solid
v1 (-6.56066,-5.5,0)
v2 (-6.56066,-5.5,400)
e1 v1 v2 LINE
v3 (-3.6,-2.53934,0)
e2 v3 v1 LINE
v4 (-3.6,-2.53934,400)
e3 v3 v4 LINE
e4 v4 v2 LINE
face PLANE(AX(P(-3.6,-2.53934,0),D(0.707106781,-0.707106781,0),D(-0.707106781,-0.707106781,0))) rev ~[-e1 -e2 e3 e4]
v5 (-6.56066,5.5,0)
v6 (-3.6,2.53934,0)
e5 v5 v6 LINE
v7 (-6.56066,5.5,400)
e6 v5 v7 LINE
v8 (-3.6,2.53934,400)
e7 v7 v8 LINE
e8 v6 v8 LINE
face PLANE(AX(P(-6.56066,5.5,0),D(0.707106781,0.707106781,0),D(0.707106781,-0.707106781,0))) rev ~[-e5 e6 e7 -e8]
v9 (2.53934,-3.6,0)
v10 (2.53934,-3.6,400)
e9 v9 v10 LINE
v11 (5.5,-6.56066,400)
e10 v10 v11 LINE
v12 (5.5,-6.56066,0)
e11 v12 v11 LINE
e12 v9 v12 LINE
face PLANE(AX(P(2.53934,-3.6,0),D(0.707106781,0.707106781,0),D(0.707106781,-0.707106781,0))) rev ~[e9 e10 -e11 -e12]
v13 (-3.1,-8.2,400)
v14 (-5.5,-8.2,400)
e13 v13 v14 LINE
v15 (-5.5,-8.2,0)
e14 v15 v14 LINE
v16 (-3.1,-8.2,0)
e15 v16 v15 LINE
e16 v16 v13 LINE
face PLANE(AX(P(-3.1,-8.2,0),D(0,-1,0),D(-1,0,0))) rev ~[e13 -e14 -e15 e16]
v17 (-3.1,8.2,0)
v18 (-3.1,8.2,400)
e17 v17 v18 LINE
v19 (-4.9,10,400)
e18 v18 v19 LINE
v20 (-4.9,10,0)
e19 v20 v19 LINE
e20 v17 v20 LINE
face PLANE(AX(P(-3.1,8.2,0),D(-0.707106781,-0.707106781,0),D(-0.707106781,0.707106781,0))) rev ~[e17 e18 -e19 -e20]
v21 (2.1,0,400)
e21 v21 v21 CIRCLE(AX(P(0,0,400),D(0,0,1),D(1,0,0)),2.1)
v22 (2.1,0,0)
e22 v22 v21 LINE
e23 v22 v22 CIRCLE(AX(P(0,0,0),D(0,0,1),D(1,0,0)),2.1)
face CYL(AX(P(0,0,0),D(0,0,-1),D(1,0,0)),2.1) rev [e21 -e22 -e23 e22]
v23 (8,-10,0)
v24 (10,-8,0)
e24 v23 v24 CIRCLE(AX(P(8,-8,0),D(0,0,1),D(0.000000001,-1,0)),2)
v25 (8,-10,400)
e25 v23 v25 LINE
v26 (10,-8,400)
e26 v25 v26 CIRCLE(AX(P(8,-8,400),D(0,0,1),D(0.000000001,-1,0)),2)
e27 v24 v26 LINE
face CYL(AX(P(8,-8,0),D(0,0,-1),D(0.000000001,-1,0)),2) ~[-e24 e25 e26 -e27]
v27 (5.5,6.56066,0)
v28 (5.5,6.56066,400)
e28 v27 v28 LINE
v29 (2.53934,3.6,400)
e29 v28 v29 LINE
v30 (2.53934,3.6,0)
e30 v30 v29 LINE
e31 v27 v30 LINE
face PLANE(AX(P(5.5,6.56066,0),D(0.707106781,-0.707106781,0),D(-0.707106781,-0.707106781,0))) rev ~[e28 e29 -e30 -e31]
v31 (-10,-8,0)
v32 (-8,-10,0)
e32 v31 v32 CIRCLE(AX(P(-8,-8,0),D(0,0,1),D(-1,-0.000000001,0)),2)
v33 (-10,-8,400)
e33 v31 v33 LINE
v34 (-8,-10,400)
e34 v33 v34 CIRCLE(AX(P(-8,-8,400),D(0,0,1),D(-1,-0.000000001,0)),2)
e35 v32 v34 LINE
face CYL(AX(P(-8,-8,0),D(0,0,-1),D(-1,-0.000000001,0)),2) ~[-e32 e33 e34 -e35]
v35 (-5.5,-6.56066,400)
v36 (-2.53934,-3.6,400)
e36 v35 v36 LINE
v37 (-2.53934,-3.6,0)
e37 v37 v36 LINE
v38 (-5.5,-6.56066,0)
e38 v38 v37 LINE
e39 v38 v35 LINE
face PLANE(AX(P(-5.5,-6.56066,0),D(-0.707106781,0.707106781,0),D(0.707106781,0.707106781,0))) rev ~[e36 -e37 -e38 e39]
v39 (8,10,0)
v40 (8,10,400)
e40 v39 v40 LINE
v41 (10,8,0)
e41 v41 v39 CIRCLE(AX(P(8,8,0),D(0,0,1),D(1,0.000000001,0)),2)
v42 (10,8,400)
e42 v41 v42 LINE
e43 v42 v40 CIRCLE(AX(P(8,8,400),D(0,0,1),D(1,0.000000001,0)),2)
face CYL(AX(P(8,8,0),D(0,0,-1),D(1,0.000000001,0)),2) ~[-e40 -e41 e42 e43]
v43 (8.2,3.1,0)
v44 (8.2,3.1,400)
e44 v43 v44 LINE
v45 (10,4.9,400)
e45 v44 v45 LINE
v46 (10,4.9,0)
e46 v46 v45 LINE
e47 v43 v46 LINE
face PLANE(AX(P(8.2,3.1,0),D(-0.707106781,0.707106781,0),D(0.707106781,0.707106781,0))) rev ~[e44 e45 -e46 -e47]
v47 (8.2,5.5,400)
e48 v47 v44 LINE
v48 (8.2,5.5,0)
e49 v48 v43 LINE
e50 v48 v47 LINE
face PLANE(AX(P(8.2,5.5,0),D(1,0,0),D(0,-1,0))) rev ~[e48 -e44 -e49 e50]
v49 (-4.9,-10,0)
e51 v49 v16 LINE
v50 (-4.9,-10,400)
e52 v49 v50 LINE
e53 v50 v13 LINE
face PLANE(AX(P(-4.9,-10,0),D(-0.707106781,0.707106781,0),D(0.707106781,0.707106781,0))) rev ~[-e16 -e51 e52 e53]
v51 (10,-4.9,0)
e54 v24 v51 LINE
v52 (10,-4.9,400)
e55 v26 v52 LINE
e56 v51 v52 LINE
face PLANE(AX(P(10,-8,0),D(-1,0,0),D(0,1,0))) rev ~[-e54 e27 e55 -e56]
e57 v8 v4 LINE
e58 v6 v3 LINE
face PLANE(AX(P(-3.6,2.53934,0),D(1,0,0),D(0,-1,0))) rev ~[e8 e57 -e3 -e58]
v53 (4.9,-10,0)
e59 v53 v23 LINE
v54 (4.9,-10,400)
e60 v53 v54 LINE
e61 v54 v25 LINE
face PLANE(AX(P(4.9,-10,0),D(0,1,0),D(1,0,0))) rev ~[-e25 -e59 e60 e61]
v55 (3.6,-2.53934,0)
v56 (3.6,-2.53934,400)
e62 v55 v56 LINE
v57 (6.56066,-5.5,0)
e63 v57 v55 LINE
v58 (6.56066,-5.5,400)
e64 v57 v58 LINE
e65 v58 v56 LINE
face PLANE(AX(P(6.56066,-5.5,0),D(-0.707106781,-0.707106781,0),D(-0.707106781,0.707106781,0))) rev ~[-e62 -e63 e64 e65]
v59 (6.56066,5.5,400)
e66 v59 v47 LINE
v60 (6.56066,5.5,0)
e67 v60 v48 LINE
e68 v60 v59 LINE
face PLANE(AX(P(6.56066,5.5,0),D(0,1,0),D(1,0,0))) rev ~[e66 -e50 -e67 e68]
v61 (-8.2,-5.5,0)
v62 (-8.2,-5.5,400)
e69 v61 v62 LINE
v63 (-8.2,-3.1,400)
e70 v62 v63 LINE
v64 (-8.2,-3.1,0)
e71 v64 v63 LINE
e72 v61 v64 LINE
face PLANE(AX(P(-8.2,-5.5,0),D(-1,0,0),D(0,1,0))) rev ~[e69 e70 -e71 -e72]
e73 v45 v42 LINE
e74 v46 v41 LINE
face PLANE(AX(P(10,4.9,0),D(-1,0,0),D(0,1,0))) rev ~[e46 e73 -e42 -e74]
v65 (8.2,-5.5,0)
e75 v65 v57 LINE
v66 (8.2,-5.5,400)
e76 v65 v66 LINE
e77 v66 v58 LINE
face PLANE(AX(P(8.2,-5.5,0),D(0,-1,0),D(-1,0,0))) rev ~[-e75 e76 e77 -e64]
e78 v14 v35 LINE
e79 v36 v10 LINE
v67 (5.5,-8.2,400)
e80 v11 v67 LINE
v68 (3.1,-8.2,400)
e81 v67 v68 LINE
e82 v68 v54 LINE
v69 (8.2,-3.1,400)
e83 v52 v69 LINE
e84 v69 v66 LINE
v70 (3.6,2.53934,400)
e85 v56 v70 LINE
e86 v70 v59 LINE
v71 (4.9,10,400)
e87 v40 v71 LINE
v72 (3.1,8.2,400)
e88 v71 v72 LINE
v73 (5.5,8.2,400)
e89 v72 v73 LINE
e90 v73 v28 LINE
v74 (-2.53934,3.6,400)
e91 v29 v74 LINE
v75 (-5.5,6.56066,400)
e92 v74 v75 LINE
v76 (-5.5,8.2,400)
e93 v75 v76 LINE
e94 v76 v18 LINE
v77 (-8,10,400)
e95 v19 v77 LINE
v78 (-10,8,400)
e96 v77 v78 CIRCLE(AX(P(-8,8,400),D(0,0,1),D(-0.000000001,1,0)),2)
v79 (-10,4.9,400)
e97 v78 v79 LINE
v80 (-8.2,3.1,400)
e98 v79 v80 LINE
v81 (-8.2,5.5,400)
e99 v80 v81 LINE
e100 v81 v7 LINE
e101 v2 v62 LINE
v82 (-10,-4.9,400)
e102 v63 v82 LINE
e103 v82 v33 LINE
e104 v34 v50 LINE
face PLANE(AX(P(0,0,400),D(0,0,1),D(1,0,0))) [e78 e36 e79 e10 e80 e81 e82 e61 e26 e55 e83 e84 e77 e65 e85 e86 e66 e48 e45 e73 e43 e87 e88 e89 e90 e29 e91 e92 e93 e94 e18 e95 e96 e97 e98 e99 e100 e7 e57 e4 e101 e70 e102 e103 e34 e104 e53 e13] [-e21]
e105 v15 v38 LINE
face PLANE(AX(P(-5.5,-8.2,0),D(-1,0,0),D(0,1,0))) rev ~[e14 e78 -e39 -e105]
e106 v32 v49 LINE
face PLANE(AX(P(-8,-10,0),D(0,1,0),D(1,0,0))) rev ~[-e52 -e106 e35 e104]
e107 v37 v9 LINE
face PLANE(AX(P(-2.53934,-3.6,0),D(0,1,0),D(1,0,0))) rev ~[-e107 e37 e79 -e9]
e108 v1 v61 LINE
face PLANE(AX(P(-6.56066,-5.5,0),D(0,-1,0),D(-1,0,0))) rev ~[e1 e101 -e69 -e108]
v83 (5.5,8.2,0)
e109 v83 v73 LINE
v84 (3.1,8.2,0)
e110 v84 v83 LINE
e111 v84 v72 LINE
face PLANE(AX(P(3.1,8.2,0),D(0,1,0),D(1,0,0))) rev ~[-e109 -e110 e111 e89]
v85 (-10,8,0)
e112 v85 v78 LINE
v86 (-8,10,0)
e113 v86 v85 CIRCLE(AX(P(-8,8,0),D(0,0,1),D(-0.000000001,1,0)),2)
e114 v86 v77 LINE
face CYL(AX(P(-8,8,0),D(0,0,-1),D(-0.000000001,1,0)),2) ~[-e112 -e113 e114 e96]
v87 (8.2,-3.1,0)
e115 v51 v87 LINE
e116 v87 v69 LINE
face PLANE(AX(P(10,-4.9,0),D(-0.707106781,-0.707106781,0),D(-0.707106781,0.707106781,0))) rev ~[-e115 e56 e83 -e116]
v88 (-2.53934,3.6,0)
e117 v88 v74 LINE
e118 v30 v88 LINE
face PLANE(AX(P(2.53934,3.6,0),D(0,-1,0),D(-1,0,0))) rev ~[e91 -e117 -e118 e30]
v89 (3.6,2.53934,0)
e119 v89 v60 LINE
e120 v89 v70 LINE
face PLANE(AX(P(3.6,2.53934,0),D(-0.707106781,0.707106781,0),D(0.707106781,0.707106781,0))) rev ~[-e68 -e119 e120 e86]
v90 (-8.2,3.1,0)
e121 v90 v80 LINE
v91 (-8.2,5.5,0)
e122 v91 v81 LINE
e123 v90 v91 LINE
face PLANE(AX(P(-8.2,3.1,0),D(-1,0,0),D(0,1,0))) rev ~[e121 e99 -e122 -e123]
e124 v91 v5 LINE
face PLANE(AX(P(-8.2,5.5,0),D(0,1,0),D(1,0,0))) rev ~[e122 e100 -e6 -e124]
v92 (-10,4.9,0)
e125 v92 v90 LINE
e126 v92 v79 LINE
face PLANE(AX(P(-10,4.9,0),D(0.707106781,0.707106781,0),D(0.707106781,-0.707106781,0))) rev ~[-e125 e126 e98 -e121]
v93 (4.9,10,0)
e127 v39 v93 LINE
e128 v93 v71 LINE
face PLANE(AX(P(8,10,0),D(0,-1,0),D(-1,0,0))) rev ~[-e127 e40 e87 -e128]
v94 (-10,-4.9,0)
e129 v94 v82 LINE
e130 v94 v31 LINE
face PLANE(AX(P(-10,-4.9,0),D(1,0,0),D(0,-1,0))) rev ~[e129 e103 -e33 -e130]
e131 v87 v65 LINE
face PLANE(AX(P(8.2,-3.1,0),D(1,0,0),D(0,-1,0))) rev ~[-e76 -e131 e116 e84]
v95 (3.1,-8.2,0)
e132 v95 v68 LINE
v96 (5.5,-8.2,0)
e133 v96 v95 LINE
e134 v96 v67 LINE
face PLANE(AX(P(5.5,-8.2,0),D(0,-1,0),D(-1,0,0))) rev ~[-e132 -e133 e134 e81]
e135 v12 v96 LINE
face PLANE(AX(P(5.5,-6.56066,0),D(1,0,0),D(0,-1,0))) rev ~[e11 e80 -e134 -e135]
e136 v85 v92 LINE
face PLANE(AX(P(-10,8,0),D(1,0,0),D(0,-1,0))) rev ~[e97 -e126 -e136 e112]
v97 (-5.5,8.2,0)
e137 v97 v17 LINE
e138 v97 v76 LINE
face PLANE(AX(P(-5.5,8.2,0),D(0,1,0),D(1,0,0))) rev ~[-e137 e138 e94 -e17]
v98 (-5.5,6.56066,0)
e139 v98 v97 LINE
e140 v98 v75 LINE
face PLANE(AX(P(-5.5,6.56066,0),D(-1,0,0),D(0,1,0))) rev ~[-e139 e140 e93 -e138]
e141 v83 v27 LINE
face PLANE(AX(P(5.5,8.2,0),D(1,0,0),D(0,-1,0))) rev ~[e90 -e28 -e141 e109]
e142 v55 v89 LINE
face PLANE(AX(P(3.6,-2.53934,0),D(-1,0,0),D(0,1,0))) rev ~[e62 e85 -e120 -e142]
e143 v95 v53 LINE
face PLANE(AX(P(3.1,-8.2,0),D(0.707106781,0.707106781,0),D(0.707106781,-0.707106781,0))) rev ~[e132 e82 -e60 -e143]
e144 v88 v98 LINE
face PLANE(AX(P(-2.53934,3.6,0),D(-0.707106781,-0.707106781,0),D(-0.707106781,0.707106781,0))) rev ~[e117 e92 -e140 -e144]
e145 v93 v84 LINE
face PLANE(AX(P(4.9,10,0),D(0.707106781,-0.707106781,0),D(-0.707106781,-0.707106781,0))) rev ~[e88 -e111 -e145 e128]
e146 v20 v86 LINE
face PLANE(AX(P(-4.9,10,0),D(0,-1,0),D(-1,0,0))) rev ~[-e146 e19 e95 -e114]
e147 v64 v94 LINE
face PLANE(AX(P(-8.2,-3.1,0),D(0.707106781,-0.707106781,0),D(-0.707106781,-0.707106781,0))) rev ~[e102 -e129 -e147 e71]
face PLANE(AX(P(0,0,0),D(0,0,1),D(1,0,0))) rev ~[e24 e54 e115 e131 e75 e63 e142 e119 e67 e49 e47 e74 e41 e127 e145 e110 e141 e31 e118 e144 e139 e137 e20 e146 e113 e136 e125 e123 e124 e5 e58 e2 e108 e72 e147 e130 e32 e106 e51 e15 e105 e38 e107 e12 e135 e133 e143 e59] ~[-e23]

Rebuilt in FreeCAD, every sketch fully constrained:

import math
import FreeCAD as App
import Part
import Sketcher
Q = App.Units.Quantity

doc = App.newDocument("Part")
body = doc.addObject("PartDesign::Body", "Body")

# Sketch on XY plane
sketch1 = body.newObject("Sketcher::SketchObject", "Sketch")
sketch1.AttachmentSupport = (doc.getObject("XY_Plane"), [""])
sketch1.MapMode = "FlatFace"
sketch1.addGeometry([
    Part.LineSegment(App.Vector(-4.9, -10, 0), App.Vector(-3.1, -8.2, 0)),  # 0
    Part.LineSegment(App.Vector(-3.1, -8.2, 0), App.Vector(-5.5, -8.2, 0)),  # 1
    Part.LineSegment(App.Vector(-5.5, -8.2, 0), App.Vector(-5.5, -6.6, 0)),  # 2
    Part.LineSegment(App.Vector(-5.5, -6.6, 0), App.Vector(-2.5, -3.6, 0)),  # 3
    Part.LineSegment(App.Vector(-2.5, -3.6, 0), App.Vector(2.5, -3.6, 0)),  # 4
    Part.LineSegment(App.Vector(2.5, -3.6, 0), App.Vector(5.5, -6.6, 0)),  # 5
    Part.LineSegment(App.Vector(5.5, -6.6, 0), App.Vector(5.5, -8.2, 0)),  # 6
    Part.LineSegment(App.Vector(5.5, -8.2, 0), App.Vector(3.1, -8.2, 0)),  # 7
    Part.LineSegment(App.Vector(3.1, -8.2, 0), App.Vector(4.9, -10, 0)),  # 8
    Part.LineSegment(App.Vector(4.9, -10, 0), App.Vector(8, -10, 0)),  # 9
    Part.ArcOfCircle(Part.Circle(App.Vector(8, -8, 0), App.Vector(0, 0, 1), 2), math.radians(-90), math.radians(0)),  # 10
    Part.LineSegment(App.Vector(10, -8, 0), App.Vector(10, -4.9, 0)),  # 11
    Part.LineSegment(App.Vector(10, -4.9, 0), App.Vector(8.2, -3.1, 0)),  # 12
    Part.LineSegment(App.Vector(8.2, -3.1, 0), App.Vector(8.2, -5.5, 0)),  # 13
    Part.LineSegment(App.Vector(8.2, -5.5, 0), App.Vector(6.6, -5.5, 0)),  # 14
    Part.LineSegment(App.Vector(6.6, -5.5, 0), App.Vector(3.6, -2.5, 0)),  # 15
    Part.LineSegment(App.Vector(3.6, -2.5, 0), App.Vector(3.6, 2.5, 0)),  # 16
    Part.LineSegment(App.Vector(3.6, 2.5, 0), App.Vector(6.6, 5.5, 0)),  # 17
    Part.LineSegment(App.Vector(6.6, 5.5, 0), App.Vector(8.2, 5.5, 0)),  # 18
    Part.LineSegment(App.Vector(8.2, 5.5, 0), App.Vector(8.2, 3.1, 0)),  # 19
    Part.LineSegment(App.Vector(8.2, 3.1, 0), App.Vector(10, 4.9, 0)),  # 20
    Part.LineSegment(App.Vector(10, 4.9, 0), App.Vector(10, 8, 0)),  # 21
    Part.ArcOfCircle(Part.Circle(App.Vector(8, 8, 0), App.Vector(0, 0, 1), 2), math.radians(0), math.radians(90)),  # 22
    Part.LineSegment(App.Vector(8, 10, 0), App.Vector(4.9, 10, 0)),  # 23
    Part.LineSegment(App.Vector(4.9, 10, 0), App.Vector(3.1, 8.2, 0)),  # 24
    Part.LineSegment(App.Vector(3.1, 8.2, 0), App.Vector(5.5, 8.2, 0)),  # 25
    Part.LineSegment(App.Vector(5.5, 8.2, 0), App.Vector(5.5, 6.6, 0)),  # 26
    Part.LineSegment(App.Vector(5.5, 6.6, 0), App.Vector(2.5, 3.6, 0)),  # 27
    Part.LineSegment(App.Vector(2.5, 3.6, 0), App.Vector(-2.5, 3.6, 0)),  # 28
    Part.LineSegment(App.Vector(-2.5, 3.6, 0), App.Vector(-5.5, 6.6, 0)),  # 29
    Part.LineSegment(App.Vector(-5.5, 6.6, 0), App.Vector(-5.5, 8.2, 0)),  # 30
    Part.LineSegment(App.Vector(-5.5, 8.2, 0), App.Vector(-3.1, 8.2, 0)),  # 31
    Part.LineSegment(App.Vector(-3.1, 8.2, 0), App.Vector(-4.9, 10, 0)),  # 32
    Part.LineSegment(App.Vector(-4.9, 10, 0), App.Vector(-8, 10, 0)),  # 33
    Part.ArcOfCircle(Part.Circle(App.Vector(-8, 8, 0), App.Vector(0, 0, 1), 2), math.radians(90), math.radians(180)),  # 34
    Part.LineSegment(App.Vector(-10, 8, 0), App.Vector(-10, 4.9, 0)),  # 35
    Part.LineSegment(App.Vector(-10, 4.9, 0), App.Vector(-8.2, 3.1, 0)),  # 36
    Part.LineSegment(App.Vector(-8.2, 3.1, 0), App.Vector(-8.2, 5.5, 0)),  # 37
    Part.LineSegment(App.Vector(-8.2, 5.5, 0), App.Vector(-6.6, 5.5, 0)),  # 38
    Part.LineSegment(App.Vector(-6.6, 5.5, 0), App.Vector(-3.6, 2.5, 0)),  # 39
    Part.LineSegment(App.Vector(-3.6, 2.5, 0), App.Vector(-3.6, -2.5, 0)),  # 40
    Part.LineSegment(App.Vector(-3.6, -2.5, 0), App.Vector(-6.6, -5.5, 0)),  # 41
    Part.LineSegment(App.Vector(-6.6, -5.5, 0), App.Vector(-8.2, -5.5, 0)),  # 42
    Part.LineSegment(App.Vector(-8.2, -5.5, 0), App.Vector(-8.2, -3.1, 0)),  # 43
    Part.LineSegment(App.Vector(-8.2, -3.1, 0), App.Vector(-10, -4.9, 0)),  # 44
    Part.LineSegment(App.Vector(-10, -4.9, 0), App.Vector(-10, -8, 0)),  # 45
    Part.ArcOfCircle(Part.Circle(App.Vector(-8, -8, 0), App.Vector(0, 0, 1), 2), math.radians(-180), math.radians(-90)),  # 46
    Part.LineSegment(App.Vector(-8, -10, 0), App.Vector(-4.9, -10, 0)),  # 47
    Part.Circle(App.Vector(0, 0, 0), App.Vector(0, 0, 1), 2.1),  # 48
], False)
sketch1.addConstraint([
    Sketcher.Constraint("Coincident", 0, 2, 1, 1),
    Sketcher.Constraint("Coincident", 1, 2, 2, 1),
    Sketcher.Constraint("Coincident", 2, 2, 3, 1),
    Sketcher.Constraint("Coincident", 3, 2, 4, 1),
    Sketcher.Constraint("Coincident", 4, 2, 5, 1),
    Sketcher.Constraint("Coincident", 5, 2, 6, 1),
    Sketcher.Constraint("Coincident", 6, 2, 7, 1),
    Sketcher.Constraint("Coincident", 7, 2, 8, 1),
    Sketcher.Constraint("Coincident", 8, 2, 9, 1),
    Sketcher.Constraint("Tangent", 9, 2, 10, 1),
    Sketcher.Constraint("Tangent", 10, 2, 11, 1),
    Sketcher.Constraint("Coincident", 11, 2, 12, 1),
    Sketcher.Constraint("Coincident", 12, 2, 13, 1),
    Sketcher.Constraint("Coincident", 13, 2, 14, 1),
    Sketcher.Constraint("Coincident", 14, 2, 15, 1),
    Sketcher.Constraint("Coincident", 15, 2, 16, 1),
    Sketcher.Constraint("Coincident", 16, 2, 17, 1),
    Sketcher.Constraint("Coincident", 17, 2, 18, 1),
    Sketcher.Constraint("Coincident", 18, 2, 19, 1),
    Sketcher.Constraint("Coincident", 19, 2, 20, 1),
    Sketcher.Constraint("Coincident", 20, 2, 21, 1),
    Sketcher.Constraint("Tangent", 21, 2, 22, 1),
    Sketcher.Constraint("Tangent", 22, 2, 23, 1),
    Sketcher.Constraint("Coincident", 23, 2, 24, 1),
    Sketcher.Constraint("Coincident", 24, 2, 25, 1),
    Sketcher.Constraint("Coincident", 25, 2, 26, 1),
    Sketcher.Constraint("Coincident", 26, 2, 27, 1),
    Sketcher.Constraint("Coincident", 27, 2, 28, 1),
    Sketcher.Constraint("Coincident", 28, 2, 29, 1),
    Sketcher.Constraint("Coincident", 29, 2, 30, 1),
    Sketcher.Constraint("Coincident", 30, 2, 31, 1),
    Sketcher.Constraint("Coincident", 31, 2, 32, 1),
    Sketcher.Constraint("Coincident", 32, 2, 33, 1),
    Sketcher.Constraint("Tangent", 33, 2, 34, 1),
    Sketcher.Constraint("Tangent", 34, 2, 35, 1),
    Sketcher.Constraint("Coincident", 35, 2, 36, 1),
    Sketcher.Constraint("Coincident", 36, 2, 37, 1),
    Sketcher.Constraint("Coincident", 37, 2, 38, 1),
    Sketcher.Constraint("Coincident", 38, 2, 39, 1),
    Sketcher.Constraint("Coincident", 39, 2, 40, 1),
    Sketcher.Constraint("Coincident", 40, 2, 41, 1),
    Sketcher.Constraint("Coincident", 41, 2, 42, 1),
    Sketcher.Constraint("Coincident", 42, 2, 43, 1),
    Sketcher.Constraint("Coincident", 43, 2, 44, 1),
    Sketcher.Constraint("Coincident", 44, 2, 45, 1),
    Sketcher.Constraint("Tangent", 45, 2, 46, 1),
    Sketcher.Constraint("Tangent", 46, 2, 47, 1),
    Sketcher.Constraint("Coincident", 47, 2, 0, 1),
    Sketcher.Constraint("Horizontal", 1),
    Sketcher.Constraint("Vertical", 2),
    Sketcher.Constraint("Horizontal", 4),
    Sketcher.Constraint("Vertical", 6),
    Sketcher.Constraint("Horizontal", 7),
    Sketcher.Constraint("Horizontal", 9),
    Sketcher.Constraint("Vertical", 11),
    Sketcher.Constraint("Vertical", 13),
    Sketcher.Constraint("Horizontal", 14),
    Sketcher.Constraint("Vertical", 16),
    Sketcher.Constraint("Horizontal", 18),
    Sketcher.Constraint("Vertical", 19),
    Sketcher.Constraint("Vertical", 21),
    Sketcher.Constraint("Horizontal", 23),
    Sketcher.Constraint("Horizontal", 25),
    Sketcher.Constraint("Vertical", 26),
    Sketcher.Constraint("Horizontal", 28),
    Sketcher.Constraint("Vertical", 30),
    Sketcher.Constraint("Horizontal", 31),
    Sketcher.Constraint("Horizontal", 33),
    Sketcher.Constraint("Vertical", 35),
    Sketcher.Constraint("Vertical", 37),
    Sketcher.Constraint("Horizontal", 38),
    Sketcher.Constraint("Vertical", 40),
    Sketcher.Constraint("Horizontal", 42),
    Sketcher.Constraint("Vertical", 43),
    Sketcher.Constraint("Vertical", 45),
    Sketcher.Constraint("Horizontal", 47),
    Sketcher.Constraint("Coincident", 48, 3, -1, 1),
    Sketcher.Constraint("Equal", 10, 22),
    Sketcher.Constraint("Equal", 22, 34),
    Sketcher.Constraint("Equal", 34, 46),
    Sketcher.Constraint("Symmetric", 10, 3, 34, 3, -1, 1),
    Sketcher.Constraint("Symmetric", 22, 3, 46, 3, -1, 1),
    Sketcher.Constraint("Symmetric", 0, 2, 24, 2, -1, 1),
    Sketcher.Constraint("Symmetric", 2, 2, 26, 2, -1, 1),
    Sketcher.Constraint("Symmetric", 3, 2, 27, 2, -1, 1),
    Sketcher.Constraint("Symmetric", 5, 2, 29, 2, -1, 1),
    Sketcher.Constraint("Symmetric", 7, 2, 31, 2, -1, 1),
    Sketcher.Constraint("Symmetric", 12, 2, 36, 2, -1, 1),
    Sketcher.Constraint("Symmetric", 14, 2, 38, 2, -1, 1),
    Sketcher.Constraint("Symmetric", 15, 2, 39, 2, -1, 1),
    Sketcher.Constraint("Symmetric", 17, 2, 41, 2, -1, 1),
    Sketcher.Constraint("Symmetric", 19, 2, 43, 2, -1, 1),
    Sketcher.Constraint("Symmetric", 22, 3, 34, 3, -2),
    Sketcher.Constraint("Symmetric", 2, 2, 5, 2, -2),
    Sketcher.Constraint("Symmetric", 0, 2, 7, 2, -2),
    Sketcher.Constraint("Symmetric", 19, 2, 36, 2, -2),
    Sketcher.Constraint("Symmetric", 17, 2, 38, 2, -2),
    Sketcher.Constraint("Parallel", 0, 3),
    Sketcher.Constraint("Perpendicular", 3, 5),
    Sketcher.Constraint("Parallel", 5, 8),
    Sketcher.Constraint("Parallel", 8, 12),
    Sketcher.Constraint("Parallel", 12, 15),
    Sketcher.Constraint("Perpendicular", 15, 17),
    Sketcher.Constraint("Parallel", 17, 20),
    Sketcher.Constraint("Parallel", 20, 24),
    Sketcher.Constraint("Perpendicular", 27, 29),
    Sketcher.Constraint("Parallel", 29, 32),
    Sketcher.Constraint("Parallel", 32, 36),
    Sketcher.Constraint("Perpendicular", 39, 41),
    Sketcher.Constraint("Parallel", 41, 44),
    Sketcher.Constraint("Horizontal", 20, 2, 35, 2),
    Sketcher.Constraint("Equal", 42, 2),
    Sketcher.Constraint("Equal", 47, 11),
    Sketcher.Constraint("Equal", 31, 13),
    Sketcher.Constraint("Equal", 28, 16),
    Sketcher.Constraint("Equal", 8, 12),
    Sketcher.Constraint("Equal", 5, 15),
    Sketcher.Constraint("Radius", 10, Q("2 mm")),
    Sketcher.Constraint("Diameter", 48, Q("4.2 mm")),
    Sketcher.Constraint("DistanceX", 1, 2, 1, 1, Q("2.4 mm")),
    Sketcher.Constraint("DistanceX", 9, 1, 9, 2, Q("3.1 mm")),
    Sketcher.Constraint("DistanceX", -1, 1, 10, 3, Q("8 mm")),
    Sketcher.Constraint("DistanceX", 0, 2, -1, 1, Q("3.1 mm")),
    Sketcher.Constraint("DistanceY", 3, 2, -1, 1, Q("3.6 mm")),
    Sketcher.Constraint("DistanceX", 4, 1, 4, 2, Q("5.07868 mm")),
])
pad1 = body.newObject("PartDesign::Pad", "Pad")
pad1.Profile = sketch1
pad1.Length = 400

doc.recompute()
